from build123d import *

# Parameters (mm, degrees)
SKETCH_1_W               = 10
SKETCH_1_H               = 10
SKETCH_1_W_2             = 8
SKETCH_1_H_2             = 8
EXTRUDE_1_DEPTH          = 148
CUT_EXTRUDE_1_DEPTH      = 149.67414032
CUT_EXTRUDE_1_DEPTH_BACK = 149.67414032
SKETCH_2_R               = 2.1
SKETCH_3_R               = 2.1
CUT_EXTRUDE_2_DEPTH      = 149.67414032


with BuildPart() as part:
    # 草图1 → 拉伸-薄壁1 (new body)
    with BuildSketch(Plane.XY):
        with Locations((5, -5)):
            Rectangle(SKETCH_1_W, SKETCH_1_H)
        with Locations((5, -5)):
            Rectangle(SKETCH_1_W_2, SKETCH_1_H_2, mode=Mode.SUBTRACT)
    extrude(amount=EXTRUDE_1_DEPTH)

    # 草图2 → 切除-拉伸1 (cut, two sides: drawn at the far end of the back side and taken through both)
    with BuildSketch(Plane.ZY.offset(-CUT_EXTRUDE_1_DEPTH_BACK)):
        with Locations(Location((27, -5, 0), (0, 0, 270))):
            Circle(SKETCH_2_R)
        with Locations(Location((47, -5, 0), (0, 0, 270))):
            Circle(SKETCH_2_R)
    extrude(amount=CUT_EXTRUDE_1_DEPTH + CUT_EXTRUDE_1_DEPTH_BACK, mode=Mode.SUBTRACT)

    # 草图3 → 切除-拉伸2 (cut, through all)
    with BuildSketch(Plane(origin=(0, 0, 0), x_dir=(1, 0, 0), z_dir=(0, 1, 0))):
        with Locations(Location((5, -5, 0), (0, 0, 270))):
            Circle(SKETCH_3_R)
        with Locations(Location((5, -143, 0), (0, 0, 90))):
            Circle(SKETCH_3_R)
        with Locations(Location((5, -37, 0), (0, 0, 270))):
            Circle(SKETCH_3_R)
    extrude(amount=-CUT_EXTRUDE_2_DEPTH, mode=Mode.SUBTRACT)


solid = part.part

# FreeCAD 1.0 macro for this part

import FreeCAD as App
import Part
import Sketcher

doc = App.newDocument("Part")
body = doc.addObject("PartDesign::Body", "Body")

sketch1 = doc.addObject("Sketcher::SketchObject", "Sketch")
body.addObject(sketch1)
sketch1.AttachmentSupport = (doc.XY_Plane, [""])
sketch1.MapMode = "FlatFace"
sketch1.addGeometry(Part.LineSegment(App.Vector(0, 0, 0), App.Vector(0, -10, 0)), False)
sketch1.addGeometry(Part.LineSegment(App.Vector(0, -10, 0), App.Vector(10, -10, 0)), False)
sketch1.addGeometry(Part.LineSegment(App.Vector(10, -10, 0), App.Vector(10, 0, 0)), False)
sketch1.addGeometry(Part.LineSegment(App.Vector(10, 0, 0), App.Vector(0, 0, 0)), False)
sketch1.addGeometry(Part.LineSegment(App.Vector(9, -9, 0), App.Vector(1, -9, 0)), False)
sketch1.addGeometry(Part.LineSegment(App.Vector(1, -9, 0), App.Vector(1, -1, 0)), False)
sketch1.addGeometry(Part.LineSegment(App.Vector(1, -1, 0), App.Vector(9, -1, 0)), False)
sketch1.addGeometry(Part.LineSegment(App.Vector(9, -1, 0), App.Vector(9, -9, 0)), False)
sketch1.addConstraint(Sketcher.Constraint("Coincident", 0, 2, 1, 1))
sketch1.addConstraint(Sketcher.Constraint("Coincident", 1, 2, 2, 1))
sketch1.addConstraint(Sketcher.Constraint("Coincident", 2, 2, 3, 1))
sketch1.addConstraint(Sketcher.Constraint("Coincident", 3, 2, 0, 1))
sketch1.addConstraint(Sketcher.Constraint("Coincident", 4, 2, 5, 1))
sketch1.addConstraint(Sketcher.Constraint("Coincident", 5, 2, 6, 1))
sketch1.addConstraint(Sketcher.Constraint("Coincident", 6, 2, 7, 1))
sketch1.addConstraint(Sketcher.Constraint("Coincident", 7, 2, 4, 1))
sketch1.addConstraint(Sketcher.Constraint("Vertical", 0))
sketch1.addConstraint(Sketcher.Constraint("Horizontal", 1))
sketch1.addConstraint(Sketcher.Constraint("Vertical", 2))
sketch1.addConstraint(Sketcher.Constraint("Horizontal", 3))
sketch1.addConstraint(Sketcher.Constraint("Horizontal", 4))
sketch1.addConstraint(Sketcher.Constraint("Vertical", 5))
sketch1.addConstraint(Sketcher.Constraint("Horizontal", 6))
sketch1.addConstraint(Sketcher.Constraint("Vertical", 7))
sketch1.addConstraint(Sketcher.Constraint("Coincident", 3, 2, -1, 1))
sketch1.addConstraint(Sketcher.Constraint("Equal", 3, 0))
sketch1.addConstraint(Sketcher.Constraint("Equal", 6, 5))
sketch1.addConstraint(Sketcher.Constraint("DistanceX", 1, 1, 1, 2, 10.0))
sketch1.addConstraint(Sketcher.Constraint("DistanceX", 4, 2, 4, 1, 8.0))
sketch1.addConstraint(Sketcher.Constraint("DistanceX", -1, 1, 4, 2, 1.0))
sketch1.addConstraint(Sketcher.Constraint("DistanceY", 4, 2, -1, 1, 9.0))
pad1 = doc.addObject("PartDesign::Pad", "Pad")
body.addObject(pad1)
pad1.Profile = sketch1
pad1.Length = 148

sketch2 = doc.addObject("Sketcher::SketchObject", "Sketch001")
body.addObject(sketch2)
sketch2.AttachmentSupport = (doc.YZ_Plane, [""])
sketch2.MapMode = "FlatFace"
sketch2.addGeometry(Part.Circle(App.Vector(-5, 27, 0), App.Vector(0, 0, 1), 2.1), False)
sketch2.addGeometry(Part.Circle(App.Vector(-5, 47, 0), App.Vector(0, 0, 1), 2.1), False)
sketch2.addConstraint(Sketcher.Constraint("Equal", 0, 1))
sketch2.addConstraint(Sketcher.Constraint("Vertical", 0, 3, 1, 3))
sketch2.addConstraint(Sketcher.Constraint("Diameter", 0, 4.2))
sketch2.addConstraint(Sketcher.Constraint("DistanceX", 0, 3, -1, 1, 5.0))
sketch2.addConstraint(Sketcher.Constraint("DistanceY", -1, 1, 0, 3, 27.0))
sketch2.addConstraint(Sketcher.Constraint("DistanceY", -1, 1, 1, 3, 47.0))
pocket1 = doc.addObject("PartDesign::Pocket", "Pocket")
body.addObject(pocket1)
pocket1.Profile = sketch2
pocket1.Type = "ThroughAll"
pocket1.Midplane = True

sketch3 = doc.addObject("Sketcher::SketchObject", "Sketch002")
body.addObject(sketch3)
sketch3.AttachmentSupport = (doc.XZ_Plane, [""])
sketch3.MapMode = "FlatFace"
sketch3.addGeometry(Part.Circle(App.Vector(5, 5, 0), App.Vector(0, 0, 1), 2.1), False)
sketch3.addGeometry(Part.Circle(App.Vector(5, 143, 0), App.Vector(0, 0, 1), 2.1), False)
sketch3.addGeometry(Part.Circle(App.Vector(5, 37, 0), App.Vector(0, 0, 1), 2.1), False)
sketch3.addConstraint(Sketcher.Constraint("Equal", 0, 1))
sketch3.addConstraint(Sketcher.Constraint("Equal", 1, 2))
sketch3.addConstraint(Sketcher.Constraint("Vertical", 0, 3, 1, 3))
sketch3.addConstraint(Sketcher.Constraint("Vertical", 1, 3, 2, 3))
sketch3.addConstraint(Sketcher.Constraint("Diameter", 0, 4.2))
sketch3.addConstraint(Sketcher.Constraint("DistanceX", -1, 1, 0, 3, 5.0))
sketch3.addConstraint(Sketcher.Constraint("DistanceY", -1, 1, 0, 3, 5.0))
sketch3.addConstraint(Sketcher.Constraint("DistanceY", -1, 1, 1, 3, 143.0))
sketch3.addConstraint(Sketcher.Constraint("DistanceY", -1, 1, 2, 3, 37.0))
pocket2 = doc.addObject("PartDesign::Pocket", "Pocket001")
body.addObject(pocket2)
pocket2.Profile = sketch3
pocket2.Type = "ThroughAll"
pocket2.Reversed = True

doc.recompute()
